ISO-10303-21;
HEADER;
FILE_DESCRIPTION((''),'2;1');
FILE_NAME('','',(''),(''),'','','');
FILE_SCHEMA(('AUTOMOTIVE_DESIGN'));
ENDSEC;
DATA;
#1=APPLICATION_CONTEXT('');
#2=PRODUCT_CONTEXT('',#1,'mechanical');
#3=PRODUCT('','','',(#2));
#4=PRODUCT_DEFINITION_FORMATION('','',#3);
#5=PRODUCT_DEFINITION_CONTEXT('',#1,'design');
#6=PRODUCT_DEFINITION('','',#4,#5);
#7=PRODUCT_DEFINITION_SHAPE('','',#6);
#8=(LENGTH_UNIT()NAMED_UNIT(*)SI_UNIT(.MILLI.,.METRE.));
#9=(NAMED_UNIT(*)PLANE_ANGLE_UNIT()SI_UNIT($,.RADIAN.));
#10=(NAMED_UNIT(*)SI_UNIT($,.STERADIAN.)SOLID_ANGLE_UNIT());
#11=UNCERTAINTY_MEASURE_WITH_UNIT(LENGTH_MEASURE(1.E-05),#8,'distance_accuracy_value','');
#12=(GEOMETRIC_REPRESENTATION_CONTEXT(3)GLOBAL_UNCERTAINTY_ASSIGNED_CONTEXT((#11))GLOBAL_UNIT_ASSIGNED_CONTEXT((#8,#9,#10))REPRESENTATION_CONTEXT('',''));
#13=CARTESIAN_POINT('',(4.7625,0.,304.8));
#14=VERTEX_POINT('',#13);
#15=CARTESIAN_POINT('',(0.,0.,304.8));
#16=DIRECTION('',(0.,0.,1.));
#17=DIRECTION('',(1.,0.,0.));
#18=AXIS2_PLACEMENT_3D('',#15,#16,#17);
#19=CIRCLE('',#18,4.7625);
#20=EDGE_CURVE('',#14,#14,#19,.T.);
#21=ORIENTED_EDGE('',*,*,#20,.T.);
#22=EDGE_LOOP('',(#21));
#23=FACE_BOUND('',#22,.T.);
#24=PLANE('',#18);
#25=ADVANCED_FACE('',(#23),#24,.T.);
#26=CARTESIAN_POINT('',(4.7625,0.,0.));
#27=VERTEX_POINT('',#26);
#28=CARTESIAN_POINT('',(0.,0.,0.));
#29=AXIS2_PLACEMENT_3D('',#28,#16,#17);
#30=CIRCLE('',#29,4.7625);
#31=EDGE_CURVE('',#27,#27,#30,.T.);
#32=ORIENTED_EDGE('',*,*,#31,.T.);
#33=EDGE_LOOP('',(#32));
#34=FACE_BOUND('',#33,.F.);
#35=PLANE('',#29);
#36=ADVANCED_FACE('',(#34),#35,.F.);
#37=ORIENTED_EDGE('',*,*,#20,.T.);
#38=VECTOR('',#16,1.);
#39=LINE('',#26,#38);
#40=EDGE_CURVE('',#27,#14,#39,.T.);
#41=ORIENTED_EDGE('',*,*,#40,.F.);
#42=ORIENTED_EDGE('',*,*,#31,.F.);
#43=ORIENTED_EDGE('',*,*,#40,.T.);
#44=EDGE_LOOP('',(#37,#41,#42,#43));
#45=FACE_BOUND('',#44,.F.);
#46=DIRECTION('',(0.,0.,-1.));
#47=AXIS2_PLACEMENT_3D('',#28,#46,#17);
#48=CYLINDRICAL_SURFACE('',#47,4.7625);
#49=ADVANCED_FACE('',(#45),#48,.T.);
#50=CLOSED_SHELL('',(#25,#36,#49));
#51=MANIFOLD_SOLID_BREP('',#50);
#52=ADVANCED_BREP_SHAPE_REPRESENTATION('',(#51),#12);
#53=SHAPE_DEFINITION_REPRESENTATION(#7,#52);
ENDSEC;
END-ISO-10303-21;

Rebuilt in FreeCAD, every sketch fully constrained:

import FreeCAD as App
import Part
import Sketcher
from FreeCAD import Vector
Q = App.Units.Quantity

doc = App.newDocument("Part")
body = doc.addObject("PartDesign::Body", "Body")

# Sketch on XY plane
sketch1 = body.newObject("Sketcher::SketchObject", "Sketch")
sketch1.AttachmentSupport = (doc.getObject("XY_Plane"), [""])
sketch1.MapMode = "FlatFace"
sketch1.addGeometry(Part.Circle(Vector(0, 0, 0), Vector(0, 0, 1), 4.8), False)
sketch1.addConstraint(Sketcher.Constraint("Coincident", 0, 3, -1, 1))
sketch1.addConstraint(Sketcher.Constraint("Diameter", 0, Q("0.375 in")))
pad1 = body.newObject("PartDesign::Pad", "Pad")
pad1.Profile = sketch1
pad1.Length = Q("12 in")

doc.recompute()
